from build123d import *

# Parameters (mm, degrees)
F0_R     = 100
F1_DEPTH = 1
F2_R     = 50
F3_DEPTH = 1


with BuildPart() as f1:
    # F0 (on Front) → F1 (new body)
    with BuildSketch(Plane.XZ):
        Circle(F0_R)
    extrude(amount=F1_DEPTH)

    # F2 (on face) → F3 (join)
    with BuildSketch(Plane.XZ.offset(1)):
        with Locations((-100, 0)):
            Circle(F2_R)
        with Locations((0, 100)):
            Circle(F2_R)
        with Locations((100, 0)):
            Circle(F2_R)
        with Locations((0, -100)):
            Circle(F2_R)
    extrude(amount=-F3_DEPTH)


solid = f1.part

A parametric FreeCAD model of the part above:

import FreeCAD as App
import Part
import Sketcher

V = App.Vector
Q = App.Units.Quantity

doc = App.newDocument("Part")
body = doc.addObject("PartDesign::Body", "Body")

# Sketch on XZ plane
sketch1 = doc.addObject("Sketcher::SketchObject", "Sketch")
body.addObject(sketch1)
sketch1.AttachmentSupport = (doc.XZ_Plane, [""])
sketch1.MapMode = "FlatFace"
sketch1.addGeometry(Part.Circle(V(0, 0, 0), V(0, 0, 1), 100), False)
sketch1.addConstraint([
    Sketcher.Constraint("Coincident", 0, 3, -1, 1),
    Sketcher.Constraint("Diameter", 0, Q("200 mm")),
])
pad1 = doc.addObject("PartDesign::Pad", "Pad")
body.addObject(pad1)
pad1.Profile = sketch1
pad1.Length = 1

# Sketch on XZ plane
sketch2 = doc.addObject("Sketcher::SketchObject", "Sketch001")
body.addObject(sketch2)
sketch2.AttachmentSupport = (doc.XZ_Plane, [""])
sketch2.MapMode = "FlatFace"
sketch2.AttachmentOffset = App.Placement(V(0, 0, 1), App.Rotation())
sketch2.addGeometry([
    Part.Circle(V(-100, 0, 0), V(0, 0, 1), 50),
    Part.Circle(V(0, 100, 0), V(0, 0, 1), 50),
    Part.Circle(V(100, 0, 0), V(0, 0, 1), 50),
    Part.Circle(V(0, -100, 0), V(0, 0, 1), 50),
], False)
sketch2.addConstraint([
    Sketcher.Constraint("Equal", 0, 1),
    Sketcher.Constraint("Equal", 1, 2),
    Sketcher.Constraint("Equal", 2, 3),
    Sketcher.Constraint("Symmetric", 0, 3, 2, 3, -1, 1),
    Sketcher.Constraint("Symmetric", 1, 3, 3, 3, -1, 1),
    Sketcher.Constraint("PointOnObject", 0, 3, -1),
    Sketcher.Constraint("PointOnObject", 1, 3, -2),
    Sketcher.Constraint("Diameter", 0, Q("100 mm")),
    Sketcher.Constraint("DistanceX", 0, 3, -1, 1, Q("100 mm")),
    Sketcher.Constraint("DistanceY", -1, 1, 1, 3, Q("100 mm")),
])
pad2 = doc.addObject("PartDesign::Pad", "Pad001")
body.addObject(pad2)
pad2.Profile = sketch2
pad2.Length = 1
pad2.Reversed = True

doc.recompute()
